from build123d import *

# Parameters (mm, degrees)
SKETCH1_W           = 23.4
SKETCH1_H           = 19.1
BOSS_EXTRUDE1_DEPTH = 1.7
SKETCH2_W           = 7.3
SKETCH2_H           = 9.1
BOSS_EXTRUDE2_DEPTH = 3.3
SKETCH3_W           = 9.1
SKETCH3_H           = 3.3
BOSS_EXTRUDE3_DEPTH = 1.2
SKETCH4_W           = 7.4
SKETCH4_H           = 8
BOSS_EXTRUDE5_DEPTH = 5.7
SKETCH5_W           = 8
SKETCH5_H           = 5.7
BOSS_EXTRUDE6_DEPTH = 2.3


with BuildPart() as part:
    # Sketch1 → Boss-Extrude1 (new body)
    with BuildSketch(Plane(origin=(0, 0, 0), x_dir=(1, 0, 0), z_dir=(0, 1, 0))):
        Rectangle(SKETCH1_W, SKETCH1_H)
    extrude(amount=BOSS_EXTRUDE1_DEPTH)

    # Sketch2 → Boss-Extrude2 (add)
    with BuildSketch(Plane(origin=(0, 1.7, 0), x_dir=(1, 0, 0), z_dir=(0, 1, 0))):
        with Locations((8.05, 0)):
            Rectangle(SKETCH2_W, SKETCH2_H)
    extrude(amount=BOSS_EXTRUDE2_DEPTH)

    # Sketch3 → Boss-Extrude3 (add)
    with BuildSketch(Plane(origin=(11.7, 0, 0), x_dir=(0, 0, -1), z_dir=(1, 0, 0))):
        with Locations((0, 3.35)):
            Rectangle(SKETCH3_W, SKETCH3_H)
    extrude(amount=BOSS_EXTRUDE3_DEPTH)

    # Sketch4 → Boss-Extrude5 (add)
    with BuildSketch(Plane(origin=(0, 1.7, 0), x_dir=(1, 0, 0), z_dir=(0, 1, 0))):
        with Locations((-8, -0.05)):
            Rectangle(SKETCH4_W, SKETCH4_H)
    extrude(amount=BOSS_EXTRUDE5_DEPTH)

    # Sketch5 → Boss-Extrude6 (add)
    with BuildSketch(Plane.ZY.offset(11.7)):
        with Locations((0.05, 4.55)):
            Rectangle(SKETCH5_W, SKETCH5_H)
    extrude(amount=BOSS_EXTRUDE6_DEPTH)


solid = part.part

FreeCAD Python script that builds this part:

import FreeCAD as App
import Part
import Sketcher

V = App.Vector

doc = App.newDocument("Part")
body = doc.addObject("PartDesign::Body", "Body")

# Sketch on XZ plane
sketch1 = doc.addObject("Sketcher::SketchObject", "Sketch")
body.addObject(sketch1)
sketch1.AttachmentSupport = (doc.XZ_Plane, [""])
sketch1.MapMode = "FlatFace"
sketch1.addGeometry([
    Part.LineSegment(V(-11.7, -9.55, 0), V(-11.7, 9.55, 0)),
    Part.LineSegment(V(-11.7, 9.55, 0), V(11.7, 9.55, 0)),
    Part.LineSegment(V(11.7, 9.55, 0), V(11.7, -9.55, 0)),
    Part.LineSegment(V(11.7, -9.55, 0), V(-11.7, -9.55, 0)),
], False)
sketch1.addConstraint([
    Sketcher.Constraint("Coincident", 0, 2, 1, 1),
    Sketcher.Constraint("Coincident", 1, 2, 2, 1),
    Sketcher.Constraint("Coincident", 2, 2, 3, 1),
    Sketcher.Constraint("Coincident", 3, 2, 0, 1),
    Sketcher.Constraint("Vertical", 0),
    Sketcher.Constraint("Horizontal", 1),
    Sketcher.Constraint("Vertical", 2),
    Sketcher.Constraint("Horizontal", 3),
    Sketcher.Constraint("Symmetric", 0, 2, 2, 2, -1, 1),
    Sketcher.Constraint("DistanceX", 1, 1, 1, 2, 23.4),
    Sketcher.Constraint("DistanceY", 0, 1, 0, 2, 19.1),
])
pad1 = doc.addObject("PartDesign::Pad", "Pad")
body.addObject(pad1)
pad1.Profile = sketch1
pad1.Length = 1.7
pad1.Reversed = True

# Sketch on XZ plane
sketch2 = doc.addObject("Sketcher::SketchObject", "Sketch001")
body.addObject(sketch2)
sketch2.AttachmentSupport = (doc.XZ_Plane, [""])
sketch2.MapMode = "FlatFace"
sketch2.AttachmentOffset = App.Placement(V(0, 0, -1.7), App.Rotation())
sketch2.addGeometry([
    Part.LineSegment(V(4.4, -4.55, 0), V(4.4, 4.55, 0)),
    Part.LineSegment(V(4.4, 4.55, 0), V(11.7, 4.55, 0)),
    Part.LineSegment(V(11.7, 4.55, 0), V(11.7, -4.55, 0)),
    Part.LineSegment(V(11.7, -4.55, 0), V(4.4, -4.55, 0)),
], False)
sketch2.addConstraint([
    Sketcher.Constraint("Coincident", 0, 2, 1, 1),
    Sketcher.Constraint("Coincident", 1, 2, 2, 1),
    Sketcher.Constraint("Coincident", 2, 2, 3, 1),
    Sketcher.Constraint("Coincident", 3, 2, 0, 1),
    Sketcher.Constraint("Vertical", 0),
    Sketcher.Constraint("Horizontal", 1),
    Sketcher.Constraint("Vertical", 2),
    Sketcher.Constraint("Horizontal", 3),
    Sketcher.Constraint("DistanceX", 1, 1, 1, 2, 7.3),
    Sketcher.Constraint("DistanceY", 0, 1, 0, 2, 9.1),
    Sketcher.Constraint("DistanceX", -1, 1, 0, 2, 4.4),
    Sketcher.Constraint("DistanceY", -1, 1, 0, 2, 4.55),
])
pad2 = doc.addObject("PartDesign::Pad", "Pad001")
body.addObject(pad2)
pad2.Profile = sketch2
pad2.Length = 3.3
pad2.Reversed = True

# Sketch on YZ plane
sketch3 = doc.addObject("Sketcher::SketchObject", "Sketch002")
body.addObject(sketch3)
sketch3.AttachmentSupport = (doc.YZ_Plane, [""])
sketch3.MapMode = "FlatFace"
sketch3.AttachmentOffset = App.Placement(V(0, 0, 11.7), App.Rotation())
sketch3.addGeometry([
    Part.LineSegment(V(5, 4.55, 0), V(1.7, 4.55, 0)),
    Part.LineSegment(V(1.7, 4.55, 0), V(1.7, -4.55, 0)),
    Part.LineSegment(V(1.7, -4.55, 0), V(5, -4.55, 0)),
    Part.LineSegment(V(5, -4.55, 0), V(5, 4.55, 0)),
], False)
sketch3.addConstraint([
    Sketcher.Constraint("Coincident", 0, 2, 1, 1),
    Sketcher.Constraint("Coincident", 1, 2, 2, 1),
    Sketcher.Constraint("Coincident", 2, 2, 3, 1),
    Sketcher.Constraint("Coincident", 3, 2, 0, 1),
    Sketcher.Constraint("Horizontal", 0),
    Sketcher.Constraint("Vertical", 1),
    Sketcher.Constraint("Horizontal", 2),
    Sketcher.Constraint("Vertical", 3),
    Sketcher.Constraint("DistanceX", 0, 2, 0, 1, 3.3),
    Sketcher.Constraint("DistanceY", 1, 2, 1, 1, 9.1),
    Sketcher.Constraint("DistanceX", -1, 1, 2, 2, 5.0),
    Sketcher.Constraint("DistanceY", -1, 1, 0, 2, 4.55),
])
pad3 = doc.addObject("PartDesign::Pad", "Pad002")
body.addObject(pad3)
pad3.Profile = sketch3
pad3.Length = 1.2

# Sketch on XZ plane
sketch4 = doc.addObject("Sketcher::SketchObject", "Sketch003")
body.addObject(sketch4)
sketch4.AttachmentSupport = (doc.XZ_Plane, [""])
sketch4.MapMode = "FlatFace"
sketch4.AttachmentOffset = App.Placement(V(0, 0, -1.7), App.Rotation())
sketch4.addGeometry([
    Part.LineSegment(V(-11.7, -3.95, 0), V(-11.7, 4.05, 0)),
    Part.LineSegment(V(-11.7, 4.05, 0), V(-4.3, 4.05, 0)),
    Part.LineSegment(V(-4.3, 4.05, 0), V(-4.3, -3.95, 0)),
    Part.LineSegment(V(-4.3, -3.95, 0), V(-11.7, -3.95, 0)),
], False)
sketch4.addConstraint([
    Sketcher.Constraint("Coincident", 0, 2, 1, 1),
    Sketcher.Constraint("Coincident", 1, 2, 2, 1),
    Sketcher.Constraint("Coincident", 2, 2, 3, 1),
    Sketcher.Constraint("Coincident", 3, 2, 0, 1),
    Sketcher.Constraint("Vertical", 0),
    Sketcher.Constraint("Horizontal", 1),
    Sketcher.Constraint("Vertical", 2),
    Sketcher.Constraint("Horizontal", 3),
    Sketcher.Constraint("DistanceY", 0, 1, 0, 2, 8.0),
    Sketcher.Constraint("DistanceX", 1, 1, 1, 2, 7.4),
    Sketcher.Constraint("DistanceX", 0, 2, -1, 1, 11.7),
    Sketcher.Constraint("DistanceY", -1, 1, 0, 2, 4.05),
])
pad4 = doc.addObject("PartDesign::Pad", "Pad003")
body.addObject(pad4)
pad4.Profile = sketch4
pad4.Length = 5.7
pad4.Reversed = True

# Sketch on YZ plane
sketch5 = doc.addObject("Sketcher::SketchObject", "Sketch004")
body.addObject(sketch5)
sketch5.AttachmentSupport = (doc.YZ_Plane, [""])
sketch5.MapMode = "FlatFace"
sketch5.AttachmentOffset = App.Placement(V(0, 0, -11.7), App.Rotation())
sketch5.addGeometry([
    Part.LineSegment(V(7.4, -3.95, 0), V(1.7, -3.95, 0)),
    Part.LineSegment(V(1.7, -3.95, 0), V(1.7, 4.05, 0)),
    Part.LineSegment(V(1.7, 4.05, 0), V(7.4, 4.05, 0)),
    Part.LineSegment(V(7.4, 4.05, 0), V(7.4, -3.95, 0)),
], False)
sketch5.addConstraint([
    Sketcher.Constraint("Coincident", 0, 2, 1, 1),
    Sketcher.Constraint("Coincident", 1, 2, 2, 1),
    Sketcher.Constraint("Coincident", 2, 2, 3, 1),
    Sketcher.Constraint("Coincident", 3, 2, 0, 1),
    Sketcher.Constraint("Horizontal", 0),
    Sketcher.Constraint("Vertical", 1),
    Sketcher.Constraint("Horizontal", 2),
    Sketcher.Constraint("Vertical", 3),
    Sketcher.Constraint("DistanceY", 1, 1, 1, 2, 8.0),
    Sketcher.Constraint("DistanceX", 0, 2, 0, 1, 5.7),
    Sketcher.Constraint("DistanceX", -1, 1, 0, 2, 1.7),
    Sketcher.Constraint("DistanceY", 0, 2, -1, 1, 3.95),
])
pad5 = doc.addObject("PartDesign::Pad", "Pad004")
body.addObject(pad5)
pad5.Profile = sketch5
pad5.Length = 2.3
pad5.Reversed = True

doc.recompute()
